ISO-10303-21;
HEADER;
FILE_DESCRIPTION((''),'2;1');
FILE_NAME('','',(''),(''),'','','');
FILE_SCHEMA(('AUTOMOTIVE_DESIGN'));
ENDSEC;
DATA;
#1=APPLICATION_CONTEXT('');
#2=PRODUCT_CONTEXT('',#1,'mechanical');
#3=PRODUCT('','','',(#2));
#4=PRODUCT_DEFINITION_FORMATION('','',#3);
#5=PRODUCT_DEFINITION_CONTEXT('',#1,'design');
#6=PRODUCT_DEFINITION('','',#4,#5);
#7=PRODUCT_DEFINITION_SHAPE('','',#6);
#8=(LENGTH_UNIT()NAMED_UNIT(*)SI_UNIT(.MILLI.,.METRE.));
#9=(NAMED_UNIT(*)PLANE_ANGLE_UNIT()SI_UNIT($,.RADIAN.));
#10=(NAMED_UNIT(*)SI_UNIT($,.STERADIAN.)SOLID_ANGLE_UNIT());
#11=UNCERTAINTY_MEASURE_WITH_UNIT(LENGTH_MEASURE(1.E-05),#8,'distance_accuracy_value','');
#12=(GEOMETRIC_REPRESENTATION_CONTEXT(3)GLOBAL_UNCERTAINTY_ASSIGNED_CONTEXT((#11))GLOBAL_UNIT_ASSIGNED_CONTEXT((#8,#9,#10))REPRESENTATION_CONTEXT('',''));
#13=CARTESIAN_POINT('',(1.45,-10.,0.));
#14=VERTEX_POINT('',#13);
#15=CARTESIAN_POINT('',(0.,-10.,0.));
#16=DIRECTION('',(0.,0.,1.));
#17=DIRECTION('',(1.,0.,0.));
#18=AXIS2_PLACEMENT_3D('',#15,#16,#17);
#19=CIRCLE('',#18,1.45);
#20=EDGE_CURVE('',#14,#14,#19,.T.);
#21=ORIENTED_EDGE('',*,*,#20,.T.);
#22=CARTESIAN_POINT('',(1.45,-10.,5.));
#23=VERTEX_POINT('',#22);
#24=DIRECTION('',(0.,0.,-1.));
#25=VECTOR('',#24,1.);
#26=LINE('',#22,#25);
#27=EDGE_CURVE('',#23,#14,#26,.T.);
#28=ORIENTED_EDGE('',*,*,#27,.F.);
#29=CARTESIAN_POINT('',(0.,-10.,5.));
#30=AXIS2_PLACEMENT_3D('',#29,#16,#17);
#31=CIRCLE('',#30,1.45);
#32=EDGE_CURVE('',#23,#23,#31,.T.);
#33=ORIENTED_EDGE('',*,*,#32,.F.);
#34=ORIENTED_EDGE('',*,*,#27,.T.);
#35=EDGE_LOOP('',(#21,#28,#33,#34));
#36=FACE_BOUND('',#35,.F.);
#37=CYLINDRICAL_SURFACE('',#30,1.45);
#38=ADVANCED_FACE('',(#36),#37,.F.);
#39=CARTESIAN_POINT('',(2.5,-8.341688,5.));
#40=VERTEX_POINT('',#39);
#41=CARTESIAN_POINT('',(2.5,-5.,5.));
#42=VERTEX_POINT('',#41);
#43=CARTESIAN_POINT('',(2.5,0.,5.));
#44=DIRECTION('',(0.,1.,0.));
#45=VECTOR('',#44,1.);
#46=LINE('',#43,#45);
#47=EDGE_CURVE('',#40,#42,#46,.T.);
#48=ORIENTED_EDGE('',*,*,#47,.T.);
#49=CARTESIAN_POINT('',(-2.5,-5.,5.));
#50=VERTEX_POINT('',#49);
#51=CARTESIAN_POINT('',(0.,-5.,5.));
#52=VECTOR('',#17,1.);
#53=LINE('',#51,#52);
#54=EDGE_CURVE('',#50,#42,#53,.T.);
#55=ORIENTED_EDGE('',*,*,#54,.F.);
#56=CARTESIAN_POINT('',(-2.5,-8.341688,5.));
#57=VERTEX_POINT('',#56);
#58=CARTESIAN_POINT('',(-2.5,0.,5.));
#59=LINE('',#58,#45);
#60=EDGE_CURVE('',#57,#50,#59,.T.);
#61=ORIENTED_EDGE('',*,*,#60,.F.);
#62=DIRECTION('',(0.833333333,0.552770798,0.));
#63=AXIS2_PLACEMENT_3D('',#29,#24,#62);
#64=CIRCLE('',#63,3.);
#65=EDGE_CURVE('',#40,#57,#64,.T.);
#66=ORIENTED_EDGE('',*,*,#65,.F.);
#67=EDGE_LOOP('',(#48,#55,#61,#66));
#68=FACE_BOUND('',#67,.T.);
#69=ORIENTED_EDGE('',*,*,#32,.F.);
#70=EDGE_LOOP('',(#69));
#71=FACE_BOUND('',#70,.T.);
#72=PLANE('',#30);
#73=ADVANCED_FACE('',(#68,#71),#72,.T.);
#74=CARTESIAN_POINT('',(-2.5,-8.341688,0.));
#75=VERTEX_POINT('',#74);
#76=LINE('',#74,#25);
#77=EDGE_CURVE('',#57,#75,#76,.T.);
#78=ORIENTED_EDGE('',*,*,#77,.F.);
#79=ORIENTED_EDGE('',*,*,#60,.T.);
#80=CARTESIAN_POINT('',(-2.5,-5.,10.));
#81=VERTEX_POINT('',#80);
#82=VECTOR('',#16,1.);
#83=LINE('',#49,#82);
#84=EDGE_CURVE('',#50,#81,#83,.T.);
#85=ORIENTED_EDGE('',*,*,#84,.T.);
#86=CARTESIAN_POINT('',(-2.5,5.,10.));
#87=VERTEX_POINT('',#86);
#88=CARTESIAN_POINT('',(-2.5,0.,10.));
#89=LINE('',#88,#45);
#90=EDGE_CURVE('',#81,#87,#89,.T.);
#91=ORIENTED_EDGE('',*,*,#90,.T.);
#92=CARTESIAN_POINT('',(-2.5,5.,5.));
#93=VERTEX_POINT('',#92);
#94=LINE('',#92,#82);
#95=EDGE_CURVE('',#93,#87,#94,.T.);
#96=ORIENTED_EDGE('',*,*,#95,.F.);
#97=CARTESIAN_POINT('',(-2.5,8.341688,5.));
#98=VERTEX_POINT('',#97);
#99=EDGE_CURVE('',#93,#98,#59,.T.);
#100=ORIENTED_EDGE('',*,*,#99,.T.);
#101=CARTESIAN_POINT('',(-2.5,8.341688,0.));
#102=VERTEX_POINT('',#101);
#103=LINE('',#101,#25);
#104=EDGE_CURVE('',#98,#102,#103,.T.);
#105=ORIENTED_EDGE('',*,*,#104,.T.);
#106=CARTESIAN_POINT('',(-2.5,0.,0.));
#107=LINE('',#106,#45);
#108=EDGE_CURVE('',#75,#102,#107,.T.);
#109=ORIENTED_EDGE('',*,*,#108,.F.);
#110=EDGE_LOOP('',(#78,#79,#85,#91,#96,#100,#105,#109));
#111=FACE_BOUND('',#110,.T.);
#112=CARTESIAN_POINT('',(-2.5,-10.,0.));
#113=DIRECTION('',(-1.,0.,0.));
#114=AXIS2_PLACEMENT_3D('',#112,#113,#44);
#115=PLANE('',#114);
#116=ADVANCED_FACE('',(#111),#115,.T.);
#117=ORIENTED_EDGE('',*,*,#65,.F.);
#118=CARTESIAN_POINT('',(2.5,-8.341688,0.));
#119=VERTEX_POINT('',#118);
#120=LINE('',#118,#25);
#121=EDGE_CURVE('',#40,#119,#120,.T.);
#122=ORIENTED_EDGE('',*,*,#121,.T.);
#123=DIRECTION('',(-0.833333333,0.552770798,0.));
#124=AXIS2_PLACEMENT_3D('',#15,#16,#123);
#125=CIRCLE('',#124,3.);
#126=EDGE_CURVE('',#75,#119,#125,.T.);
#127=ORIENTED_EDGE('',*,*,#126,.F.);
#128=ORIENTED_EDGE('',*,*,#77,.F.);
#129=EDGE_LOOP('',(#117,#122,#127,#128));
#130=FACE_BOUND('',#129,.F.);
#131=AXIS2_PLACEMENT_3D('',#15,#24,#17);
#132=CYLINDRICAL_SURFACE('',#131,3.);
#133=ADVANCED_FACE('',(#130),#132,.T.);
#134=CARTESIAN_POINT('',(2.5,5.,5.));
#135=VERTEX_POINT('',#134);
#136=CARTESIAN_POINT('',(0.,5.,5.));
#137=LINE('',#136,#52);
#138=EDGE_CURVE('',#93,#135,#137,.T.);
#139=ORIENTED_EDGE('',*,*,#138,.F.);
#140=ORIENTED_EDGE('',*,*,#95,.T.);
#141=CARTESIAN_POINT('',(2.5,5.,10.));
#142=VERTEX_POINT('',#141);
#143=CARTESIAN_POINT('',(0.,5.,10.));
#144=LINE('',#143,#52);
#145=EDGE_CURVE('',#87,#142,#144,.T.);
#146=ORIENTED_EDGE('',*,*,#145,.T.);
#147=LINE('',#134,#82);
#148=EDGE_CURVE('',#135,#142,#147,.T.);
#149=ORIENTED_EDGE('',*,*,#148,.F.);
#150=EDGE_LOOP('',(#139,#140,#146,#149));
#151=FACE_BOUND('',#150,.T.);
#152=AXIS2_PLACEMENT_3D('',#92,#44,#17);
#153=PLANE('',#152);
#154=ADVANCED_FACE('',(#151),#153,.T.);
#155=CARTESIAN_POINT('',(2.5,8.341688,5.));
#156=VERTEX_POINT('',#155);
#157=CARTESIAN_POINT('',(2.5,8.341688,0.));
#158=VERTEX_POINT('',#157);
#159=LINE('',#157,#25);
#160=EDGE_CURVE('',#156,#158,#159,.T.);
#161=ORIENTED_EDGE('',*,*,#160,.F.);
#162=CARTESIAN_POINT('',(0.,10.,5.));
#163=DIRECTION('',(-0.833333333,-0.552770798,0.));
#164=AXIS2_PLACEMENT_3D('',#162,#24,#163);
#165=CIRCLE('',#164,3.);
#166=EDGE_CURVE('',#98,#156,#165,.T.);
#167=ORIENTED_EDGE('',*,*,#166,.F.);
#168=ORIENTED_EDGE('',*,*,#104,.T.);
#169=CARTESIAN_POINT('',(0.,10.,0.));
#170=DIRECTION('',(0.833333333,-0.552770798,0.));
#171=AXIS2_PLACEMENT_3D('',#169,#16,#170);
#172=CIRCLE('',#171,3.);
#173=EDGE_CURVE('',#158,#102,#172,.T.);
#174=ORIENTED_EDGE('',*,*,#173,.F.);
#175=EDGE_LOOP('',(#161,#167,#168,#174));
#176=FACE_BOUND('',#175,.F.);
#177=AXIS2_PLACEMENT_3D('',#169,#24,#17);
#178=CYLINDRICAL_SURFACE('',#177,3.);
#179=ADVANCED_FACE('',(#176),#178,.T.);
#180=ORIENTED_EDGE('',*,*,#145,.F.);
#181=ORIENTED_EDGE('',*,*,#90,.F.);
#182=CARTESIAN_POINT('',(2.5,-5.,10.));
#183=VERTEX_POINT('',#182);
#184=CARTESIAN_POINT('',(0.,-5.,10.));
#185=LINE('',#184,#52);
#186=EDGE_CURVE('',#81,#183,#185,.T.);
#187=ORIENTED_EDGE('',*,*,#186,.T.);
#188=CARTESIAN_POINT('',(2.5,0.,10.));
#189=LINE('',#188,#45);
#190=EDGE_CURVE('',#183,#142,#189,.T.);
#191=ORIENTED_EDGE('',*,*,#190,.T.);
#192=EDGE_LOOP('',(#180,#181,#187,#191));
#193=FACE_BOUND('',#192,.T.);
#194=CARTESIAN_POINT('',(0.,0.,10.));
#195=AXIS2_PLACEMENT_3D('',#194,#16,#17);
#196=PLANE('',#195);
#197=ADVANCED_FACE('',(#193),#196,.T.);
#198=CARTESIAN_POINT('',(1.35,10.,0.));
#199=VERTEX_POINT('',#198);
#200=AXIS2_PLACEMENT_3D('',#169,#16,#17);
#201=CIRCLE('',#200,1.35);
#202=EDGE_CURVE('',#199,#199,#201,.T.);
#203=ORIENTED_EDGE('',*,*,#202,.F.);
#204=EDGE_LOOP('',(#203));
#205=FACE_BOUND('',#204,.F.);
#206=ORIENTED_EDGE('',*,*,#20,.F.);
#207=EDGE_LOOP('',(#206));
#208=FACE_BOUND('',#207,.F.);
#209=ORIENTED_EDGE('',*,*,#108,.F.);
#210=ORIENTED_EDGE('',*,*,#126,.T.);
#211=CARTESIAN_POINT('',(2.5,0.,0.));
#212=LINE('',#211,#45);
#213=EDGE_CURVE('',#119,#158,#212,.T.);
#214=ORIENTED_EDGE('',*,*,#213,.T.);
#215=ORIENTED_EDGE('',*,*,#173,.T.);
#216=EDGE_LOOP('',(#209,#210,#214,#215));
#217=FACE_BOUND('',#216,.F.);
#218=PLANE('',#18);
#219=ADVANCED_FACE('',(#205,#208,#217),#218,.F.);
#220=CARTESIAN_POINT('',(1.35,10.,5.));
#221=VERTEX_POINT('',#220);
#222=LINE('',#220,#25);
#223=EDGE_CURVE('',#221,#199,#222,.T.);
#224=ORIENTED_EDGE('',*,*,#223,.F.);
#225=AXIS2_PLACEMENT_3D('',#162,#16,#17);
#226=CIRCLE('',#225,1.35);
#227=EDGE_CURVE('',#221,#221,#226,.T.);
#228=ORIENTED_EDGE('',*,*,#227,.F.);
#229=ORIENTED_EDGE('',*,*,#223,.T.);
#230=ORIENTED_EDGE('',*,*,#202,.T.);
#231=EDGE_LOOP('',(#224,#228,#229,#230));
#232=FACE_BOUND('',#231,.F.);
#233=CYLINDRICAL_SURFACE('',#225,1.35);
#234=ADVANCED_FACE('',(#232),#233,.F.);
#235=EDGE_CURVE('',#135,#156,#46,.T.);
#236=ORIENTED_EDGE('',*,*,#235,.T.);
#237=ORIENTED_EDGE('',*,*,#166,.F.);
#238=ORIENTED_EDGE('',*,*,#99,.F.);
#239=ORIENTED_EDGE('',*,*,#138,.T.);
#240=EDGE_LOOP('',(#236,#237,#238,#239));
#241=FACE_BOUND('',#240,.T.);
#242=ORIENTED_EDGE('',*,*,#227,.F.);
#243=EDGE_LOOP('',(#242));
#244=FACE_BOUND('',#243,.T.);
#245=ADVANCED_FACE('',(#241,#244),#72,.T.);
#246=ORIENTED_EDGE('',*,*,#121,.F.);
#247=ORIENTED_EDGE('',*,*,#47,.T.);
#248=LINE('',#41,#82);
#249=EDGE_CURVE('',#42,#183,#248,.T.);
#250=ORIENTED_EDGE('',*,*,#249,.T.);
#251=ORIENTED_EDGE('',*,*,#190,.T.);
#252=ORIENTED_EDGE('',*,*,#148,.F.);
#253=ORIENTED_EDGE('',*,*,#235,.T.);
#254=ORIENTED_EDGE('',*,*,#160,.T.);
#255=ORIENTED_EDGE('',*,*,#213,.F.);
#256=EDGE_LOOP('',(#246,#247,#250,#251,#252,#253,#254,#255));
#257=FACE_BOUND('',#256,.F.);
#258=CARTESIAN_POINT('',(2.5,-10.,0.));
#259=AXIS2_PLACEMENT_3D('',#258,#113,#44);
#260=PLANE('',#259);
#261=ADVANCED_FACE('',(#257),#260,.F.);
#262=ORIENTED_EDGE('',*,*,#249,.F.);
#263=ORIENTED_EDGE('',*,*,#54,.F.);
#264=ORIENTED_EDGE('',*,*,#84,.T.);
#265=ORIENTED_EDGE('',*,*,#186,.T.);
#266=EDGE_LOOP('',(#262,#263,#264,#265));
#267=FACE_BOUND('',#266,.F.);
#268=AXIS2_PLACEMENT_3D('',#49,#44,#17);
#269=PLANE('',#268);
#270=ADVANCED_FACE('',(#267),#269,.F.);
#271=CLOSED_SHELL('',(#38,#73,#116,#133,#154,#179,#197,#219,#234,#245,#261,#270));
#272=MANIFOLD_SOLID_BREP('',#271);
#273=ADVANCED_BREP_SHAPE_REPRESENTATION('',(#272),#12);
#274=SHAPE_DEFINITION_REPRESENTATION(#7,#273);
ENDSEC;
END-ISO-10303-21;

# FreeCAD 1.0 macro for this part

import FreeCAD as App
import Part
import Sketcher

V = App.Vector

doc = App.newDocument("Part")
body = doc.addObject("PartDesign::Body", "Body")

# Sketch on XY plane
sketch1 = body.newObject("Sketcher::SketchObject", "Sketch")
sketch1.AttachmentSupport = (doc.getObject("XY_Plane"), [""])
sketch1.MapMode = "FlatFace"
sketch1.addGeometry([
    Part.LineSegment(V(-2, 10, 0), V(-2, -10, 0)),
    Part.LineSegment(V(-2, -10, 0), V(2, -10, 0)),
    Part.LineSegment(V(2, -10, 0), V(2, 10, 0)),
    Part.LineSegment(V(2, 10, 0), V(-2, 10, 0)),
], False)
sketch1.addConstraint([
    Sketcher.Constraint("Coincident", 0, 2, 1, 1),
    Sketcher.Constraint("Coincident", 1, 2, 2, 1),
    Sketcher.Constraint("Coincident", 2, 2, 3, 1),
    Sketcher.Constraint("Coincident", 3, 2, 0, 1),
    Sketcher.Constraint("Vertical", 0),
    Sketcher.Constraint("Horizontal", 1),
    Sketcher.Constraint("Vertical", 2),
    Sketcher.Constraint("Horizontal", 3),
    Sketcher.Constraint("Symmetric", 0, 2, 2, 2, -1, 1),
    Sketcher.Constraint("DistanceX", 1, 1, 1, 2, 5.0),
    Sketcher.Constraint("DistanceY", 0, 2, 0, 1, 20.0),
])
pad1 = body.newObject("PartDesign::Pad", "Pad")
pad1.Profile = sketch1
pad1.Length = 5

# Sketch on XY plane
sketch2 = body.newObject("Sketcher::SketchObject", "Sketch001")
sketch2.AttachmentSupport = (doc.getObject("XY_Plane"), [""])
sketch2.MapMode = "FlatFace"
sketch2.addGeometry(Part.Circle(V(0, 10, 0), V(0, 0, 1), 3), False)
sketch2.addConstraint([
    Sketcher.Constraint("PointOnObject", 0, 3, -2),
    Sketcher.Constraint("Diameter", 0, 6.0),
    Sketcher.Constraint("DistanceY", -1, 1, 0, 3, 10.0),
])
pad2 = body.newObject("PartDesign::Pad", "Pad001")
pad2.Profile = sketch2
pad2.Length = 5

# Sketch on XY plane
sketch3 = body.newObject("Sketcher::SketchObject", "Sketch002")
sketch3.AttachmentSupport = (doc.getObject("XY_Plane"), [""])
sketch3.MapMode = "FlatFace"
sketch3.addGeometry(Part.Circle(V(0, -10, 0), V(0, 0, 1), 3), False)
sketch3.addConstraint([
    Sketcher.Constraint("PointOnObject", 0, 3, -2),
    Sketcher.Constraint("Diameter", 0, 6.0),
    Sketcher.Constraint("DistanceY", 0, 3, -1, 1, 10.0),
])
pad3 = body.newObject("PartDesign::Pad", "Pad002")
pad3.Profile = sketch3
pad3.Length = 5

# Sketch on XY plane
sketch4 = body.newObject("Sketcher::SketchObject", "Sketch003")
sketch4.AttachmentSupport = (doc.getObject("XY_Plane"), [""])
sketch4.MapMode = "FlatFace"
sketch4.AttachmentOffset = App.Placement(V(0, 0, 5), App.Rotation())
sketch4.addGeometry(Part.Circle(V(0, 10, 0), V(0, 0, 1), 1.4), False)
sketch4.addConstraint([
    Sketcher.Constraint("PointOnObject", 0, 3, -2),
    Sketcher.Constraint("Diameter", 0, 2.7),
    Sketcher.Constraint("DistanceY", -1, 1, 0, 3, 10.0),
])
pocket1 = body.newObject("PartDesign::Pocket", "Pocket")
pocket1.Profile = sketch4
pocket1.Length = 5

# Sketch on XY plane
sketch5 = body.newObject("Sketcher::SketchObject", "Sketch004")
sketch5.AttachmentSupport = (doc.getObject("XY_Plane"), [""])
sketch5.MapMode = "FlatFace"
sketch5.AttachmentOffset = App.Placement(V(0, 0, 5), App.Rotation())
sketch5.addGeometry(Part.Circle(V(0, -10, 0), V(0, 0, 1), 1.4), False)
sketch5.addConstraint([
    Sketcher.Constraint("PointOnObject", 0, 3, -2),
    Sketcher.Constraint("Diameter", 0, 2.9),
    Sketcher.Constraint("DistanceY", 0, 3, -1, 1, 10.0),
])
pocket2 = body.newObject("PartDesign::Pocket", "Pocket001")
pocket2.Profile = sketch5
pocket2.Length = 5

# Sketch on XY plane
sketch6 = body.newObject("Sketcher::SketchObject", "Sketch005")
sketch6.AttachmentSupport = (doc.getObject("XY_Plane"), [""])
sketch6.MapMode = "FlatFace"
sketch6.AttachmentOffset = App.Placement(V(0, 0, 5), App.Rotation())
sketch6.addGeometry([
    Part.LineSegment(V(-2, 5, 0), V(-2, -5, 0)),
    Part.LineSegment(V(-2, -5, 0), V(2, -5, 0)),
    Part.LineSegment(V(2, -5, 0), V(2, 5, 0)),
    Part.LineSegment(V(2, 5, 0), V(-2, 5, 0)),
], False)
sketch6.addConstraint([
    Sketcher.Constraint("Coincident", 0, 2, 1, 1),
    Sketcher.Constraint("Coincident", 1, 2, 2, 1),
    Sketcher.Constraint("Coincident", 2, 2, 3, 1),
    Sketcher.Constraint("Coincident", 3, 2, 0, 1),
    Sketcher.Constraint("Vertical", 0),
    Sketcher.Constraint("Horizontal", 1),
    Sketcher.Constraint("Vertical", 2),
    Sketcher.Constraint("Horizontal", 3),
    Sketcher.Constraint("Symmetric", 0, 2, 2, 2, -1, 1),
    Sketcher.Constraint("DistanceX", 1, 1, 1, 2, 5.0),
    Sketcher.Constraint("DistanceY", 0, 2, 0, 1, 10.0),
])
pad4 = body.newObject("PartDesign::Pad", "Pad003")
pad4.Profile = sketch6
pad4.Length = 5

doc.recompute()
